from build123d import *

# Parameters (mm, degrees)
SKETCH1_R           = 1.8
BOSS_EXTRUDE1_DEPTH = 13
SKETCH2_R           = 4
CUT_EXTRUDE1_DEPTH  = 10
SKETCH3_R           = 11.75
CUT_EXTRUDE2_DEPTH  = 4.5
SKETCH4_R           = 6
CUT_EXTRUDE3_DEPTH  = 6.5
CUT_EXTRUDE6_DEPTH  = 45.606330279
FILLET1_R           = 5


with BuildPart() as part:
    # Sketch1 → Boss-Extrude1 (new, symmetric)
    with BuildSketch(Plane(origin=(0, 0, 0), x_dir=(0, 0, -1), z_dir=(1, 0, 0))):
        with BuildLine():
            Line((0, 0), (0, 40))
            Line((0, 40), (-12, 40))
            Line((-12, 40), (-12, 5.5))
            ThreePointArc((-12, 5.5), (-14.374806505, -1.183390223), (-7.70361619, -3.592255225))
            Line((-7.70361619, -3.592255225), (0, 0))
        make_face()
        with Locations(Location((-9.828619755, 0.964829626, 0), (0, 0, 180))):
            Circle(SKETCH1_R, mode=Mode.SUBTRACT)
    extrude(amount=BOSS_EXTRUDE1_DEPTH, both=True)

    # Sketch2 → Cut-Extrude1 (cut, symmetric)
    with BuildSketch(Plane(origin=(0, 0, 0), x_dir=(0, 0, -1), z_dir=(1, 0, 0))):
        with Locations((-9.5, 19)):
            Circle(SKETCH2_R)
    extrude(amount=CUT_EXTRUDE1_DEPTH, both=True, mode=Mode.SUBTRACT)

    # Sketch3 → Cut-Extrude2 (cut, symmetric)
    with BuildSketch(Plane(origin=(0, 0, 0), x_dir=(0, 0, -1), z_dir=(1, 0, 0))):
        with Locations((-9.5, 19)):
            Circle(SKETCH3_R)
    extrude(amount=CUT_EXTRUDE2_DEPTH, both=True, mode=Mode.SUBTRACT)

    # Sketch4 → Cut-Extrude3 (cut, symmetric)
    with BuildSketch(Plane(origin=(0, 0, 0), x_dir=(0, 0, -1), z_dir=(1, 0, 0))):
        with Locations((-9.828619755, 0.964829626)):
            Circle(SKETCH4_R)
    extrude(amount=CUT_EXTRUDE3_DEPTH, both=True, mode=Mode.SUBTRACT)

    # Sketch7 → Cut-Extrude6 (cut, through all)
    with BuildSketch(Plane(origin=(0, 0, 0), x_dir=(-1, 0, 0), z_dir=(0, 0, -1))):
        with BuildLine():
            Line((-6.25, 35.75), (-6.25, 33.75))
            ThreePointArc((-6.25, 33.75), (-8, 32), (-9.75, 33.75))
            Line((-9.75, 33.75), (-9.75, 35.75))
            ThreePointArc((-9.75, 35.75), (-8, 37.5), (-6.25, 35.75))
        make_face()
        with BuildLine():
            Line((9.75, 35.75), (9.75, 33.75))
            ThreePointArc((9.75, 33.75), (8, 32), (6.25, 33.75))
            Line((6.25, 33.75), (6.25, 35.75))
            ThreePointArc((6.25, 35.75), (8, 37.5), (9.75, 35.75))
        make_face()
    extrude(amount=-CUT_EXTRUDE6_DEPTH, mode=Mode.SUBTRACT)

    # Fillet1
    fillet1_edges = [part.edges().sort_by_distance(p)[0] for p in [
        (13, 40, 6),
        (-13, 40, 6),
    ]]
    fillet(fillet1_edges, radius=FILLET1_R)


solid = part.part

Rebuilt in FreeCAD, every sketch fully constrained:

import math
import FreeCAD as App
import Part
import Sketcher
Q = App.Units.Quantity


def edges_at(feature, points):
    """Names of the edges that pass closest to the given points."""
    edges = feature.Shape.Edges
    near = lambda p: min(range(len(edges)), key=lambda i: edges[i].distToShape(Part.Vertex(*p))[0])
    return sorted({f"Edge{near(p) + 1}" for p in points})

doc = App.newDocument("Part")
body = doc.addObject("PartDesign::Body", "Body")

# Sketch on YZ plane
sketch1 = doc.addObject("Sketcher::SketchObject", "Sketch")
body.addObject(sketch1)
sketch1.AttachmentSupport = (doc.YZ_Plane, [""])
sketch1.MapMode = "FlatFace"
sketch1.addGeometry([
    Part.LineSegment(App.Vector(0, 0, 0), App.Vector(40, 0, 0)),  # 0
    Part.LineSegment(App.Vector(40, 0, 0), App.Vector(40, 12, 0)),  # 1
    Part.LineSegment(App.Vector(40, 12, 0), App.Vector(5.5, 12, 0)),  # 2
    Part.ArcOfCircle(Part.Circle(App.Vector(1, 9.8, 0), App.Vector(0, 0, 1), 5), math.radians(26), math.radians(205)),  # 3
    Part.LineSegment(App.Vector(-3.6, 7.7, 0), App.Vector(0, 0, 0)),  # 4
    Part.Circle(App.Vector(1, 9.8, 0), App.Vector(0, 0, 1), 1.8),  # 5
], False)
sketch1.addConstraint([
    Sketcher.Constraint("Coincident", 0, 2, 1, 1),
    Sketcher.Constraint("Coincident", 1, 2, 2, 1),
    Sketcher.Constraint("Coincident", 2, 2, 3, 1),
    Sketcher.Constraint("Tangent", 3, 2, 4, 1),
    Sketcher.Constraint("Coincident", 4, 2, 0, 1),
    Sketcher.Constraint("Horizontal", 0),
    Sketcher.Constraint("Vertical", 1),
    Sketcher.Constraint("Horizontal", 2),
    Sketcher.Constraint("Coincident", 4, 2, -1, 1),
    Sketcher.Constraint("Coincident", 5, 3, 3, 3),
    Sketcher.Constraint("Diameter", 5, Q("3.6 mm")),
    Sketcher.Constraint("DistanceX", 0, 1, 0, 2, Q("40 mm")),
    Sketcher.Constraint("DistanceY", 1, 1, 1, 2, Q("12 mm")),
    Sketcher.Constraint("Angle", 4, Q("-65 deg")),
    Sketcher.Constraint("DistanceX", 2, 2, 2, 1, Q("34.5 mm")),
    Sketcher.Constraint("Distance", 4, Q("8.5 mm")),
])
pad1 = doc.addObject("PartDesign::Pad", "Pad")
body.addObject(pad1)
pad1.Profile = sketch1
pad1.Length = 26
pad1.Midplane = True

# Sketch on YZ plane
sketch2 = doc.addObject("Sketcher::SketchObject", "Sketch001")
body.addObject(sketch2)
sketch2.AttachmentSupport = (doc.YZ_Plane, [""])
sketch2.MapMode = "FlatFace"
sketch2.addGeometry(Part.Circle(App.Vector(19, 9.5, 0), App.Vector(0, 0, 1), 4), False)
sketch2.addConstraint([
    Sketcher.Constraint("Diameter", 0, Q("8 mm")),
    Sketcher.Constraint("DistanceX", -1, 1, 0, 3, Q("19 mm")),
    Sketcher.Constraint("DistanceY", -1, 1, 0, 3, Q("9.5 mm")),
])
pocket1 = doc.addObject("PartDesign::Pocket", "Pocket")
body.addObject(pocket1)
pocket1.Profile = sketch2
pocket1.Length = 20
pocket1.Midplane = True

# Sketch on YZ plane
sketch3 = doc.addObject("Sketcher::SketchObject", "Sketch002")
body.addObject(sketch3)
sketch3.AttachmentSupport = (doc.YZ_Plane, [""])
sketch3.MapMode = "FlatFace"
sketch3.addGeometry(Part.Circle(App.Vector(19, 10, 0), App.Vector(0, 0, 1), 12), False)
sketch3.addConstraint([
    Sketcher.Constraint("Diameter", 0, Q("23.5 mm")),
    Sketcher.Constraint("DistanceX", -1, 1, 0, 3, Q("19 mm")),
    Sketcher.Constraint("DistanceY", -1, 1, 0, 3, Q("9.5 mm")),
])
pocket2 = doc.addObject("PartDesign::Pocket", "Pocket001")
body.addObject(pocket2)
pocket2.Profile = sketch3
pocket2.Length = 9
pocket2.Midplane = True

# Sketch on YZ plane
sketch4 = doc.addObject("Sketcher::SketchObject", "Sketch003")
body.addObject(sketch4)
sketch4.AttachmentSupport = (doc.YZ_Plane, [""])
sketch4.MapMode = "FlatFace"
sketch4.addGeometry(Part.Circle(App.Vector(1, 10, 0), App.Vector(0, 0, 1), 6), False)
sketch4.addConstraint([
    Sketcher.Constraint("Diameter", 0, Q("12 mm")),
    Sketcher.Constraint("DistanceX", -1, 1, 0, 3, Q("0.96483 mm")),
    Sketcher.Constraint("DistanceY", -1, 1, 0, 3, Q("9.82862 mm")),
])
pocket3 = doc.addObject("PartDesign::Pocket", "Pocket002")
body.addObject(pocket3)
pocket3.Profile = sketch4
pocket3.Length = 13
pocket3.Midplane = True

# Sketch on XY plane
sketch5 = doc.addObject("Sketcher::SketchObject", "Sketch004")
body.addObject(sketch5)
sketch5.AttachmentSupport = (doc.XY_Plane, [""])
sketch5.MapMode = "FlatFace"
sketch5.addGeometry([
    Part.LineSegment(App.Vector(6.2, 33.8, 0), App.Vector(6.2, 35.8, 0)),  # 0
    Part.ArcOfCircle(Part.Circle(App.Vector(8, 35.8, 0), App.Vector(0, 0, 1), 1.8), math.radians(0), math.radians(180)),  # 1
    Part.LineSegment(App.Vector(9.8, 35.8, 0), App.Vector(9.8, 33.8, 0)),  # 2
    Part.ArcOfCircle(Part.Circle(App.Vector(8, 33.8, 0), App.Vector(0, 0, 1), 1.8), math.radians(180), math.radians(360)),  # 3
    Part.LineSegment(App.Vector(-9.8, 33.8, 0), App.Vector(-9.8, 35.8, 0)),  # 4
    Part.ArcOfCircle(Part.Circle(App.Vector(-8, 35.8, 0), App.Vector(0, 0, 1), 1.8), math.radians(0), math.radians(180)),  # 5
    Part.LineSegment(App.Vector(-6.2, 35.8, 0), App.Vector(-6.2, 33.8, 0)),  # 6
    Part.ArcOfCircle(Part.Circle(App.Vector(-8, 33.8, 0), App.Vector(0, 0, 1), 1.8), math.radians(180), math.radians(360)),  # 7
], False)
sketch5.addConstraint([
    Sketcher.Constraint("Tangent", 0, 2, 1, 2),
    Sketcher.Constraint("Tangent", 1, 1, 2, 1),
    Sketcher.Constraint("Tangent", 2, 2, 3, 2),
    Sketcher.Constraint("Tangent", 3, 1, 0, 1),
    Sketcher.Constraint("Tangent", 4, 2, 5, 2),
    Sketcher.Constraint("Tangent", 5, 1, 6, 1),
    Sketcher.Constraint("Tangent", 6, 2, 7, 2),
    Sketcher.Constraint("Tangent", 7, 1, 4, 1),
    Sketcher.Constraint("Vertical", 0),
    Sketcher.Constraint("Vertical", 2),
    Sketcher.Constraint("Vertical", 4),
    Sketcher.Constraint("Vertical", 6),
    Sketcher.Constraint("Equal", 3, 5),
    Sketcher.Constraint("Symmetric", 1, 3, 5, 3, -2),
    Sketcher.Constraint("Horizontal", 3, 3, 7, 3),
    Sketcher.Constraint("DistanceY", 0, 1, 0, 2, Q("2 mm")),
    Sketcher.Constraint("Radius", 1, Q("1.75 mm")),
    Sketcher.Constraint("DistanceX", -1, 1, 1, 3, Q("8 mm")),
    Sketcher.Constraint("DistanceY", -1, 1, 1, 3, Q("35.75 mm")),
])
pocket4 = doc.addObject("PartDesign::Pocket", "Pocket003")
body.addObject(pocket4)
pocket4.Profile = sketch5
pocket4.Type = "ThroughAll"
pocket4.Reversed = True
doc.recompute()

fillet = doc.addObject("PartDesign::Fillet", "Fillet")
body.addObject(fillet)
fillet.Base = (pocket4, edges_at(pocket4, [(13, 40, 6), (-13, 40, 6)]))
fillet.Radius = 5

doc.recompute()
